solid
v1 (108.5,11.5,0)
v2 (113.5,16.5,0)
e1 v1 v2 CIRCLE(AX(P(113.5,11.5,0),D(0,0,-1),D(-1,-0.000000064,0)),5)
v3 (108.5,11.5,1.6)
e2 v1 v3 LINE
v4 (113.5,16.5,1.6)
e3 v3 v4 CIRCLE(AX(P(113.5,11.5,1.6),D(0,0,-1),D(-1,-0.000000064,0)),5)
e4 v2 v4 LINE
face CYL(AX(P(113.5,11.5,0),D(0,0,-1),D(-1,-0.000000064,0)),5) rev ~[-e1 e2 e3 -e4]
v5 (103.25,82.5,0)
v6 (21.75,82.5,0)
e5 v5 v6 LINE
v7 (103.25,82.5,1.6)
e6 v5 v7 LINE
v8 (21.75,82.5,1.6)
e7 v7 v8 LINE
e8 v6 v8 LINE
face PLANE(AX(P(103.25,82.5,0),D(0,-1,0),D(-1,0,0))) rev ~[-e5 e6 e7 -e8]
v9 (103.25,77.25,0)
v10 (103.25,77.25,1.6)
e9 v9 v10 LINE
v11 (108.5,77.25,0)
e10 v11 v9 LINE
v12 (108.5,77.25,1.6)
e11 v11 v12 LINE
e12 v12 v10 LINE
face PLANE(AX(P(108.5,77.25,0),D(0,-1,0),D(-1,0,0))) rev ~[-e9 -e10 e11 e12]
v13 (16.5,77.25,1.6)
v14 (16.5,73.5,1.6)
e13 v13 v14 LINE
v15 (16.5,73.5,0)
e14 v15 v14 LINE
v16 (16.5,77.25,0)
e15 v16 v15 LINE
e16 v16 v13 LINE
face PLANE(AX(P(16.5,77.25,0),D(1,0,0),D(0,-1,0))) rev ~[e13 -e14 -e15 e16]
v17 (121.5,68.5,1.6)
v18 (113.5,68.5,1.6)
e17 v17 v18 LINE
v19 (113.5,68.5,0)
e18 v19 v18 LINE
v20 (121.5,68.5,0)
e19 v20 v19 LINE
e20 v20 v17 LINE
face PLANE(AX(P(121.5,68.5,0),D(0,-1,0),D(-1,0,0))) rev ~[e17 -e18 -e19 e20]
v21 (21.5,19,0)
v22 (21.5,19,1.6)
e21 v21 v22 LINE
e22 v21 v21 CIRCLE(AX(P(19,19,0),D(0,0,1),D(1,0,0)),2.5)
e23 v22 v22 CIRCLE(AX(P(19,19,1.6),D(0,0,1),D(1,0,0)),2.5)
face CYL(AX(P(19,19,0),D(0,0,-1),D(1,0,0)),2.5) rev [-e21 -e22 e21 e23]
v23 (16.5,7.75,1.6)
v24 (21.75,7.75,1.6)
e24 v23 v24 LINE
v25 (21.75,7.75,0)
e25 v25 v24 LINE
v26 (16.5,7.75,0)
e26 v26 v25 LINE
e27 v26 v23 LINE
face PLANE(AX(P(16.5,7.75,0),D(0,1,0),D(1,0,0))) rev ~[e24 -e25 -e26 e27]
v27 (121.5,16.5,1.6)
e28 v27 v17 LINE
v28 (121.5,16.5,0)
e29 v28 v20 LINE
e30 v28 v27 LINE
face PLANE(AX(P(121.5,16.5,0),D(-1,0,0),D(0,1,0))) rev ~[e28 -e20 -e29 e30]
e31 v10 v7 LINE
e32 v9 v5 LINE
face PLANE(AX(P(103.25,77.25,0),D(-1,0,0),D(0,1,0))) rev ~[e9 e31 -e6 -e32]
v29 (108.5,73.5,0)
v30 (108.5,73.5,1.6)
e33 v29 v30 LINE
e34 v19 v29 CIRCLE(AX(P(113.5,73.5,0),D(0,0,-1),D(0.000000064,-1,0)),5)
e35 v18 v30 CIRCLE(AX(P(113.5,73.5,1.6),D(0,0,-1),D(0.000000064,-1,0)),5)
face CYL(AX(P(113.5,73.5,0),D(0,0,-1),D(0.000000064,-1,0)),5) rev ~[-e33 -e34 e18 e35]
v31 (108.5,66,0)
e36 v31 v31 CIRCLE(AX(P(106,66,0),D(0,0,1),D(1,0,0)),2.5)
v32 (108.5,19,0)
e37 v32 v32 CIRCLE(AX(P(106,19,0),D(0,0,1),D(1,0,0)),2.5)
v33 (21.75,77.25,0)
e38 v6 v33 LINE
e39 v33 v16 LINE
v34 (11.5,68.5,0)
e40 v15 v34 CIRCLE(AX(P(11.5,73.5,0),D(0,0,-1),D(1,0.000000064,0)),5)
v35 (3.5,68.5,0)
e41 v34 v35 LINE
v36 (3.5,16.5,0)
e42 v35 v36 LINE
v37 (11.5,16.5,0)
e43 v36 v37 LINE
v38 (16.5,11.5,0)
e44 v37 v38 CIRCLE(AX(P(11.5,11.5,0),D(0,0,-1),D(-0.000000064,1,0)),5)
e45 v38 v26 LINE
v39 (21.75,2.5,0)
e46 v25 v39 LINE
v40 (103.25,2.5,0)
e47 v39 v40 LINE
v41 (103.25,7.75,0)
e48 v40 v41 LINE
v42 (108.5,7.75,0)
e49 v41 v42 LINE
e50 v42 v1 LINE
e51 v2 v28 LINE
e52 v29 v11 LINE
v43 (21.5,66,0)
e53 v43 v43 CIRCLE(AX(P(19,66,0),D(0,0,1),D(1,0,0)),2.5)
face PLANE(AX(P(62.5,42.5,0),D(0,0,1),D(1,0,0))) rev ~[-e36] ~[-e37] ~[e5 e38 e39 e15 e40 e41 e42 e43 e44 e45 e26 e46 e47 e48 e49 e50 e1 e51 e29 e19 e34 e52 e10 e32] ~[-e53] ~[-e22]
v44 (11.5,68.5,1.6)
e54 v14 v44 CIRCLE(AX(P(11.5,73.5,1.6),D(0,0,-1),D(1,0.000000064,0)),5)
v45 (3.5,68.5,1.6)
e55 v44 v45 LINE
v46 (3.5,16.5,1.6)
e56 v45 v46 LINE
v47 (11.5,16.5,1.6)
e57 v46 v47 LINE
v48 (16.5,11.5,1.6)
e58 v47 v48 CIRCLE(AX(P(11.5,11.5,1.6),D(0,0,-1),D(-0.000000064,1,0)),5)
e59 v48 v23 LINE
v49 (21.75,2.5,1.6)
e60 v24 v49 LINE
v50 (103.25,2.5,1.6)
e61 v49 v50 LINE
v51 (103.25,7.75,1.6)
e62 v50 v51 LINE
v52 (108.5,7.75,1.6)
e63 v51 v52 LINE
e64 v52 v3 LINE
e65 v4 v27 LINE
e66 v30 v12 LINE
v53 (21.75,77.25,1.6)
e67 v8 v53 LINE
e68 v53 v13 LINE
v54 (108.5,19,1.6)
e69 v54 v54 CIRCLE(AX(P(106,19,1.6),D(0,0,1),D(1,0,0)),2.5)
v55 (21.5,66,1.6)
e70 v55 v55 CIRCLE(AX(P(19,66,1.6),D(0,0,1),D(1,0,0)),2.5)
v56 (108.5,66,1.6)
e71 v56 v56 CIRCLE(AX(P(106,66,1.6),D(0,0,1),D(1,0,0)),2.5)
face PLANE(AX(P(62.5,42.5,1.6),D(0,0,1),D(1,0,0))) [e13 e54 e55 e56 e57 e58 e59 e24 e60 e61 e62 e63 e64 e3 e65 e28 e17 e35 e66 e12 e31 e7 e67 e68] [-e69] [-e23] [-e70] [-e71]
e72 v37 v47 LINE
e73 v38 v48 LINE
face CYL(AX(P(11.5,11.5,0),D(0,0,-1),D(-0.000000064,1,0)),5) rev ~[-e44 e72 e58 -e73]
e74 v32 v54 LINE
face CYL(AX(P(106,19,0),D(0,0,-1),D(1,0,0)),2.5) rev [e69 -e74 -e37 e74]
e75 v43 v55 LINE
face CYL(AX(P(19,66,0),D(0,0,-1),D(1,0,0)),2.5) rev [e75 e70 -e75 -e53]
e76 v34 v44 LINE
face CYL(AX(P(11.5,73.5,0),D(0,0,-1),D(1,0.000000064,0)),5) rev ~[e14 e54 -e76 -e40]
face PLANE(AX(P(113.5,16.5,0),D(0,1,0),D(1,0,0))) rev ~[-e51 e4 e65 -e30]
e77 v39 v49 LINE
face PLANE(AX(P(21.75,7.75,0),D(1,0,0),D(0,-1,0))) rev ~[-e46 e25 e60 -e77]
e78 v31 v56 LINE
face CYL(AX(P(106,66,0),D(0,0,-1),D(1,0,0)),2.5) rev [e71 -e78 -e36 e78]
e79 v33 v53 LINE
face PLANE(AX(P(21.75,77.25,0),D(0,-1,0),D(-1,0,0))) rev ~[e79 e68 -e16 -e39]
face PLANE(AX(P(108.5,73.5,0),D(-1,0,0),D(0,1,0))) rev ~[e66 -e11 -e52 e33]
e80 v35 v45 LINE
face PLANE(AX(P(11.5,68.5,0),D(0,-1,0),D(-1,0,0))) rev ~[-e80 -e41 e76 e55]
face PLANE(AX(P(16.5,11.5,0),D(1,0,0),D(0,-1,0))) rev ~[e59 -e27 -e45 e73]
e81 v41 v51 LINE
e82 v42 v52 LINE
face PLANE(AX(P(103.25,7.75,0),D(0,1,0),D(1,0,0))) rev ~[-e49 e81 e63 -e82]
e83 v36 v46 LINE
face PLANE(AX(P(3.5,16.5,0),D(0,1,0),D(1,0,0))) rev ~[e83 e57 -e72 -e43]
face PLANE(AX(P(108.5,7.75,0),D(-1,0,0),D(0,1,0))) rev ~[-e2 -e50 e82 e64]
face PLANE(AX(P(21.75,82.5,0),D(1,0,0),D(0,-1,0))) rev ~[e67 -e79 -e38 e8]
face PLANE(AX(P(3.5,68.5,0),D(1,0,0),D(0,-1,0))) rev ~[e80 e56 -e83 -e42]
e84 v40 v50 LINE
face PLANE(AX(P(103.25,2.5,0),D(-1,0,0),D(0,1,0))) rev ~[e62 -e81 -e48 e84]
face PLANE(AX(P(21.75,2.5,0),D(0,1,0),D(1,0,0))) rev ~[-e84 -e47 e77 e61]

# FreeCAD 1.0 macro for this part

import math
import FreeCAD as App
import Part
import Sketcher

V = App.Vector

doc = App.newDocument("Part")
body = doc.addObject("PartDesign::Body", "Body")

# Sketch on XY plane
sketch1 = body.newObject("Sketcher::SketchObject", "Sketch")
sketch1.AttachmentSupport = (doc.getObject("XY_Plane"), [""])
sketch1.MapMode = "FlatFace"
sketch1.addGeometry(Part.ArcOfCircle(Part.Circle(V(11.5, 73.5, 0), V(0, 0, 1), 5), math.radians(-90.000004), math.radians(0.000004)), False)
sketch1.addGeometry(Part.LineSegment(V(11.5, 68.5, 0), V(3.5, 68.5, 0)), False)
sketch1.addGeometry(Part.LineSegment(V(3.5, 68.5, 0), V(3.5, 16.5, 0)), False)
sketch1.addGeometry(Part.LineSegment(V(3.5, 16.5, 0), V(11.5, 16.5, 0)), False)
sketch1.addGeometry(Part.ArcOfCircle(Part.Circle(V(11.5, 11.5, 0), V(0, 0, 1), 5), math.radians(-0.000004), math.radians(90.000004)), False)
sketch1.addGeometry(Part.LineSegment(V(16.5, 11.5, 0), V(16.5, 7.75, 0)), False)
sketch1.addGeometry(Part.LineSegment(V(16.5, 7.75, 0), V(21.75, 7.75, 0)), False)
sketch1.addGeometry(Part.LineSegment(V(21.75, 7.75, 0), V(21.75, 2.5, 0)), False)
sketch1.addGeometry(Part.LineSegment(V(21.75, 2.5, 0), V(103.25, 2.5, 0)), False)
sketch1.addGeometry(Part.LineSegment(V(103.25, 2.5, 0), V(103.25, 7.75, 0)), False)
sketch1.addGeometry(Part.LineSegment(V(103.25, 7.75, 0), V(108.5, 7.75, 0)), False)
sketch1.addGeometry(Part.LineSegment(V(108.5, 7.75, 0), V(108.5, 11.5, 0)), False)
sketch1.addGeometry(Part.ArcOfCircle(Part.Circle(V(113.5, 11.5, 0), V(0, 0, 1), 5), math.radians(89.999996), math.radians(180.000004)), False)
sketch1.addGeometry(Part.LineSegment(V(113.5, 16.5, 0), V(121.5, 16.5, 0)), False)
sketch1.addGeometry(Part.LineSegment(V(121.5, 16.5, 0), V(121.5, 68.5, 0)), False)
sketch1.addGeometry(Part.LineSegment(V(121.5, 68.5, 0), V(113.5, 68.5, 0)), False)
sketch1.addGeometry(Part.ArcOfCircle(Part.Circle(V(113.5, 73.5, 0), V(0, 0, 1), 5), math.radians(179.999996), math.radians(270.000004)), False)
sketch1.addGeometry(Part.LineSegment(V(108.5, 73.5, 0), V(108.5, 77.25, 0)), False)
sketch1.addGeometry(Part.LineSegment(V(108.5, 77.25, 0), V(103.25, 77.25, 0)), False)
sketch1.addGeometry(Part.LineSegment(V(103.25, 77.25, 0), V(103.25, 82.5, 0)), False)
sketch1.addGeometry(Part.LineSegment(V(103.25, 82.5, 0), V(21.75, 82.5, 0)), False)
sketch1.addGeometry(Part.LineSegment(V(21.75, 82.5, 0), V(21.75, 77.25, 0)), False)
sketch1.addGeometry(Part.LineSegment(V(21.75, 77.25, 0), V(16.5, 77.25, 0)), False)
sketch1.addGeometry(Part.LineSegment(V(16.5, 77.25, 0), V(16.5, 73.5, 0)), False)
sketch1.addGeometry(Part.Circle(V(19, 19, 0), V(0, 0, 1), 2.5), False)
sketch1.addGeometry(Part.Circle(V(106, 19, 0), V(0, 0, 1), 2.5), False)
sketch1.addGeometry(Part.Circle(V(19, 66, 0), V(0, 0, 1), 2.5), False)
sketch1.addGeometry(Part.Circle(V(106, 66, 0), V(0, 0, 1), 2.5), False)
sketch1.addConstraint(Sketcher.Constraint("Tangent", 0, 1, 1, 1))
sketch1.addConstraint(Sketcher.Constraint("Coincident", 1, 2, 2, 1))
sketch1.addConstraint(Sketcher.Constraint("Coincident", 2, 2, 3, 1))
sketch1.addConstraint(Sketcher.Constraint("Tangent", 3, 2, 4, 2))
sketch1.addConstraint(Sketcher.Constraint("Tangent", 4, 1, 5, 1))
sketch1.addConstraint(Sketcher.Constraint("Coincident", 5, 2, 6, 1))
sketch1.addConstraint(Sketcher.Constraint("Coincident", 6, 2, 7, 1))
sketch1.addConstraint(Sketcher.Constraint("Coincident", 7, 2, 8, 1))
sketch1.addConstraint(Sketcher.Constraint("Coincident", 8, 2, 9, 1))
sketch1.addConstraint(Sketcher.Constraint("Coincident", 9, 2, 10, 1))
sketch1.addConstraint(Sketcher.Constraint("Coincident", 10, 2, 11, 1))
sketch1.addConstraint(Sketcher.Constraint("Tangent", 11, 2, 12, 2))
sketch1.addConstraint(Sketcher.Constraint("Tangent", 12, 1, 13, 1))
sketch1.addConstraint(Sketcher.Constraint("Coincident", 13, 2, 14, 1))
sketch1.addConstraint(Sketcher.Constraint("Coincident", 14, 2, 15, 1))
sketch1.addConstraint(Sketcher.Constraint("Tangent", 15, 2, 16, 2))
sketch1.addConstraint(Sketcher.Constraint("Tangent", 16, 1, 17, 1))
sketch1.addConstraint(Sketcher.Constraint("Coincident", 17, 2, 18, 1))
sketch1.addConstraint(Sketcher.Constraint("Coincident", 18, 2, 19, 1))
sketch1.addConstraint(Sketcher.Constraint("Coincident", 19, 2, 20, 1))
sketch1.addConstraint(Sketcher.Constraint("Coincident", 20, 2, 21, 1))
sketch1.addConstraint(Sketcher.Constraint("Coincident", 21, 2, 22, 1))
sketch1.addConstraint(Sketcher.Constraint("Coincident", 22, 2, 23, 1))
sketch1.addConstraint(Sketcher.Constraint("Tangent", 23, 2, 0, 2))
sketch1.addConstraint(Sketcher.Constraint("Horizontal", 1))
sketch1.addConstraint(Sketcher.Constraint("Vertical", 2))
sketch1.addConstraint(Sketcher.Constraint("Horizontal", 3))
sketch1.addConstraint(Sketcher.Constraint("Vertical", 5))
sketch1.addConstraint(Sketcher.Constraint("Horizontal", 6))
sketch1.addConstraint(Sketcher.Constraint("Vertical", 7))
sketch1.addConstraint(Sketcher.Constraint("Horizontal", 8))
sketch1.addConstraint(Sketcher.Constraint("Vertical", 9))
sketch1.addConstraint(Sketcher.Constraint("Horizontal", 10))
sketch1.addConstraint(Sketcher.Constraint("Vertical", 11))
sketch1.addConstraint(Sketcher.Constraint("Horizontal", 13))
sketch1.addConstraint(Sketcher.Constraint("Vertical", 14))
sketch1.addConstraint(Sketcher.Constraint("Horizontal", 15))
sketch1.addConstraint(Sketcher.Constraint("Vertical", 17))
sketch1.addConstraint(Sketcher.Constraint("Horizontal", 18))
sketch1.addConstraint(Sketcher.Constraint("Vertical", 19))
sketch1.addConstraint(Sketcher.Constraint("Horizontal", 20))
sketch1.addConstraint(Sketcher.Constraint("Vertical", 21))
sketch1.addConstraint(Sketcher.Constraint("Horizontal", 22))
sketch1.addConstraint(Sketcher.Constraint("Vertical", 23))
sketch1.addConstraint(Sketcher.Constraint("Equal", 0, 4))
sketch1.addConstraint(Sketcher.Constraint("Equal", 4, 12))
sketch1.addConstraint(Sketcher.Constraint("Equal", 12, 16))
sketch1.addConstraint(Sketcher.Constraint("Equal", 24, 25))
sketch1.addConstraint(Sketcher.Constraint("Equal", 25, 26))
sketch1.addConstraint(Sketcher.Constraint("Equal", 26, 27))
sketch1.addConstraint(Sketcher.Constraint("Horizontal", 4, 3, 12, 3))
sketch1.addConstraint(Sketcher.Constraint("Horizontal", 0, 3, 16, 3))
sketch1.addConstraint(Sketcher.Constraint("Horizontal", 24, 3, 25, 3))
sketch1.addConstraint(Sketcher.Constraint("Horizontal", 26, 3, 27, 3))
sketch1.addConstraint(Sketcher.Constraint("Horizontal", 6, 2, 9, 2))
sketch1.addConstraint(Sketcher.Constraint("Horizontal", 18, 2, 21, 2))
sketch1.addConstraint(Sketcher.Constraint("Vertical", 0, 3, 4, 3))
sketch1.addConstraint(Sketcher.Constraint("Vertical", 12, 3, 16, 3))
sketch1.addConstraint(Sketcher.Constraint("Vertical", 24, 3, 26, 3))
sketch1.addConstraint(Sketcher.Constraint("Vertical", 25, 3, 27, 3))
sketch1.addConstraint(Sketcher.Constraint("Vertical", 9, 2, 18, 2))
sketch1.addConstraint(Sketcher.Constraint("Vertical", 7, 2, 20, 2))
sketch1.addConstraint(Sketcher.Constraint("Equal", 6, 10))
sketch1.addConstraint(Sketcher.Constraint("Equal", 3, 13))
sketch1.addConstraint(Sketcher.Constraint("Equal", 22, 7))
sketch1.addConstraint(Sketcher.Constraint("Equal", 11, 17))
sketch1.addConstraint(Sketcher.Constraint("Equal", 9, 19))
sketch1.addConstraint(Sketcher.Constraint("Diameter", 24, 5.0))
sketch1.addConstraint(Sketcher.Constraint("Radius", 0, 5.0))
sketch1.addConstraint(Sketcher.Constraint("DistanceX", 1, 2, 1, 1, 8.0))
sketch1.addConstraint(Sketcher.Constraint("DistanceY", 2, 2, 2, 1, 52.0))
sketch1.addConstraint(Sketcher.Constraint("DistanceX", 8, 1, 8, 2, 81.5))
sketch1.addConstraint(Sketcher.Constraint("DistanceX", -1, 1, 24, 3, 19.0))
sketch1.addConstraint(Sketcher.Constraint("DistanceY", -1, 1, 24, 3, 19.0))
sketch1.addConstraint(Sketcher.Constraint("DistanceX", -1, 1, 25, 3, 106.0))
sketch1.addConstraint(Sketcher.Constraint("DistanceY", -1, 1, 26, 3, 66.0))
sketch1.addConstraint(Sketcher.Constraint("DistanceX", 4, 3, 12, 3, 101.999999))
sketch1.addConstraint(Sketcher.Constraint("DistanceY", 7, 2, 4, 1, 9.0))
sketch1.addConstraint(Sketcher.Constraint("DistanceX", -1, 1, 0, 3, 11.5))
sketch1.addConstraint(Sketcher.Constraint("DistanceY", -1, 1, 0, 3, 73.5))
pad1 = body.newObject("PartDesign::Pad", "Pad")
pad1.Profile = sketch1
pad1.Length = 1.6

doc.recompute()
